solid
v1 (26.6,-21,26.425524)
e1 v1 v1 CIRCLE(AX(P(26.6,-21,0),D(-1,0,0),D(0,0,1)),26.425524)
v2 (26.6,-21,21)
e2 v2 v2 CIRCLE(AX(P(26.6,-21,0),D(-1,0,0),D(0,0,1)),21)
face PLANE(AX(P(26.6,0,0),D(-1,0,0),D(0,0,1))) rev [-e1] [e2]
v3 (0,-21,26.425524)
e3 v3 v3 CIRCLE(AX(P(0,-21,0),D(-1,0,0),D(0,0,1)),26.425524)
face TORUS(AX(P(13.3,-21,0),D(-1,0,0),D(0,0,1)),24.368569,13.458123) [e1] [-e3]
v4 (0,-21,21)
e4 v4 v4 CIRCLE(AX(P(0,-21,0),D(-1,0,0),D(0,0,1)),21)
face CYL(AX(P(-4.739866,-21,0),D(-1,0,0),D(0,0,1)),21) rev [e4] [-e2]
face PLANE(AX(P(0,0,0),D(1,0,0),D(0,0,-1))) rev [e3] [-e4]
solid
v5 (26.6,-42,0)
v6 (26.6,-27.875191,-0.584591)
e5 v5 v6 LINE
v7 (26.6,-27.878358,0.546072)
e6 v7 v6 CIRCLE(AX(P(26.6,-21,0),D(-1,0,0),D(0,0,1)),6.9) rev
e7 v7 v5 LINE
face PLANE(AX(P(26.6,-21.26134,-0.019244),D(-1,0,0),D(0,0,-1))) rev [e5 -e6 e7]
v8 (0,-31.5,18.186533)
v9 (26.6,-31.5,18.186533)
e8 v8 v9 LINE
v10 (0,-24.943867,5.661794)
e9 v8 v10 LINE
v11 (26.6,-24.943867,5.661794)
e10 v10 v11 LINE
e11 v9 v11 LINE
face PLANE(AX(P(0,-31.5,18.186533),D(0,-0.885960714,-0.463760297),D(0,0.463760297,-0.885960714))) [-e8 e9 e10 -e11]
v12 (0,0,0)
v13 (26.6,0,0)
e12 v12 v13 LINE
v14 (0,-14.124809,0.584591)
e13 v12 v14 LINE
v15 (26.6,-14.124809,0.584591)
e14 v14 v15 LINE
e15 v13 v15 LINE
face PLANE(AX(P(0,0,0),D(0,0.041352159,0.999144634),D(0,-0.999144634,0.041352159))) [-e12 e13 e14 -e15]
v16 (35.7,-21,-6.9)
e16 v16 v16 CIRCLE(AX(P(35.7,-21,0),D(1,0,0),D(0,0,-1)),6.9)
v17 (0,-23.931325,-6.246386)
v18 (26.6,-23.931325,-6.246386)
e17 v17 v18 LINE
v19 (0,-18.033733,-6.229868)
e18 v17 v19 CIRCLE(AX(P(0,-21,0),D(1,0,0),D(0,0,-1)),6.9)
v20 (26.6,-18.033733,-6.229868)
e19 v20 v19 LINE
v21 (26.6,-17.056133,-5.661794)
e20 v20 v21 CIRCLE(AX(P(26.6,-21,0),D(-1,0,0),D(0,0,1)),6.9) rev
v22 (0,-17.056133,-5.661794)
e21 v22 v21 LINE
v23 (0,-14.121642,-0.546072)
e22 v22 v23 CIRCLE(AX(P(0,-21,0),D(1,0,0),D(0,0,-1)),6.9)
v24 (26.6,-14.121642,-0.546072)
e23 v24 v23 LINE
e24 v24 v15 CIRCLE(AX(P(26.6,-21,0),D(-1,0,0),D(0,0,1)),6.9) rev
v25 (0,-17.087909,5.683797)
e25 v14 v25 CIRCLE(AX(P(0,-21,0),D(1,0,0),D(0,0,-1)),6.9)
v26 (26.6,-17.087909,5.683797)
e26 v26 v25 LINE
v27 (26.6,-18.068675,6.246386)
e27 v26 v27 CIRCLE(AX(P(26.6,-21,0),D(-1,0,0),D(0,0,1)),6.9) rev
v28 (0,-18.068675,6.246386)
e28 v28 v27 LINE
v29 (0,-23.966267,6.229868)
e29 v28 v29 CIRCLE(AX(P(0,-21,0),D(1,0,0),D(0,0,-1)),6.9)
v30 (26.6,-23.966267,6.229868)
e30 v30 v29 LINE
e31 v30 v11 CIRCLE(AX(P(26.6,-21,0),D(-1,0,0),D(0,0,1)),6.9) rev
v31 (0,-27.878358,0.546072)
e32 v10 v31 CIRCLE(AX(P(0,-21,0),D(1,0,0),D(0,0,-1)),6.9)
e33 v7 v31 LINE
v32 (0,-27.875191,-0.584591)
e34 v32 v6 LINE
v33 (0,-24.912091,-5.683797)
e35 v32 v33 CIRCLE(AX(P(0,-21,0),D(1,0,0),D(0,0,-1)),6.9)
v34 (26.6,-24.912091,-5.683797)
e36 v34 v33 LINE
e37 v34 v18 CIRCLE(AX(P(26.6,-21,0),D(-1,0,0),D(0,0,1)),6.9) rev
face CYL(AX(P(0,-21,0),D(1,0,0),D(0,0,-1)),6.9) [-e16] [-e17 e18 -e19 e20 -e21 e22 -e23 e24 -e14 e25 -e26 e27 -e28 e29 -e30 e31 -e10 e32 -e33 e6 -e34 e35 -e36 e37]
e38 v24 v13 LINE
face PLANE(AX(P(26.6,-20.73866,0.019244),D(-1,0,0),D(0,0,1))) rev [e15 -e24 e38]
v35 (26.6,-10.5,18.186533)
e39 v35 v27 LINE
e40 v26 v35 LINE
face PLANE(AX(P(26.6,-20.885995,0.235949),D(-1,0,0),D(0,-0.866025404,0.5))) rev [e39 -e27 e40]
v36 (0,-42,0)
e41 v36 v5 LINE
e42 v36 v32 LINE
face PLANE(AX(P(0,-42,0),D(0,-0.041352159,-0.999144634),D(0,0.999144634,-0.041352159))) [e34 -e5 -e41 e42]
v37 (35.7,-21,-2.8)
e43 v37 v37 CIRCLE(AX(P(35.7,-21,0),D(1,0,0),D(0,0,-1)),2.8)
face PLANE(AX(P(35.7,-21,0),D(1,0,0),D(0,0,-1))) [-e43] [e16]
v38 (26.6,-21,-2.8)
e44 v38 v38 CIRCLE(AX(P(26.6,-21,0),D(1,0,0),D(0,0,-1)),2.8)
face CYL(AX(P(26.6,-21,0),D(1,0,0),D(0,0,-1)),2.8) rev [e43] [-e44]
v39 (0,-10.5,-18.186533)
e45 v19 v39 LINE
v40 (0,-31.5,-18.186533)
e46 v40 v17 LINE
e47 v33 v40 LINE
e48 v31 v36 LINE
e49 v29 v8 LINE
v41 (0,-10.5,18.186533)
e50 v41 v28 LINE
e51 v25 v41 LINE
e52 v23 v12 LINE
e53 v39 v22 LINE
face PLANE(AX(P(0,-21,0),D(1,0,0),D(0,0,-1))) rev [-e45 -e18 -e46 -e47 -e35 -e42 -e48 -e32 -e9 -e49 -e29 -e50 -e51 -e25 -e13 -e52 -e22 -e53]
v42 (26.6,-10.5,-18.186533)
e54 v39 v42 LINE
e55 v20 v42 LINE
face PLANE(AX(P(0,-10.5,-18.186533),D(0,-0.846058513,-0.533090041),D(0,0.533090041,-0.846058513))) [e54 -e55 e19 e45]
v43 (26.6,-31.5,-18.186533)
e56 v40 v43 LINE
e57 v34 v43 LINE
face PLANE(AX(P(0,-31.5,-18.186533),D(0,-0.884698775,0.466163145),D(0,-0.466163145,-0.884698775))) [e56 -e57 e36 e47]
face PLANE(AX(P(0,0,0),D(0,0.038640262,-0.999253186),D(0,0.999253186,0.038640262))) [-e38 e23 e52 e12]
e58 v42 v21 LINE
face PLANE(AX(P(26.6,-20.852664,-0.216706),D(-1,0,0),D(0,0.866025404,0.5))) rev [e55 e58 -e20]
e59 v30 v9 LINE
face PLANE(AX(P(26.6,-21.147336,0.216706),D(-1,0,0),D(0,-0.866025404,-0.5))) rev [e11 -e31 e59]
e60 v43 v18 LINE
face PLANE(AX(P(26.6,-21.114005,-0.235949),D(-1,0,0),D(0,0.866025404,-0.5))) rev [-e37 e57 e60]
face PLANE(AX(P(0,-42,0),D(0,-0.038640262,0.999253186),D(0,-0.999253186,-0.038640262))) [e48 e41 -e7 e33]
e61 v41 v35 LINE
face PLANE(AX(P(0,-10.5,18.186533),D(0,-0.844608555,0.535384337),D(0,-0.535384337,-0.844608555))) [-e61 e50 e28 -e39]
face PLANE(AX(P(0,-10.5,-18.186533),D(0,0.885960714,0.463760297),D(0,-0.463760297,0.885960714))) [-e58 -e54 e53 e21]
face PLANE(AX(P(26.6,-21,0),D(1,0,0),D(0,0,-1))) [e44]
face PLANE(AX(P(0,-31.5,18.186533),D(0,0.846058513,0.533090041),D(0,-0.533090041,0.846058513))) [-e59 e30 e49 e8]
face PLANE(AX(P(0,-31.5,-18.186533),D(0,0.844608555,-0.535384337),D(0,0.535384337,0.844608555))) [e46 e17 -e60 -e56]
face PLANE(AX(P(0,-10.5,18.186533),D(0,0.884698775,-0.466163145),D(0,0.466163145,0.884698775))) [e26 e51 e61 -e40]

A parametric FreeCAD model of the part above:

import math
import FreeCAD as App
import Part
import Sketcher

V = App.Vector
Q = App.Units.Quantity

doc = App.newDocument("Part")
body = doc.addObject("PartDesign::Body", "Body")

# Sketch on XY plane
sketch1 = doc.addObject("Sketcher::SketchObject", "Sketch")
body.addObject(sketch1)
sketch1.AttachmentSupport = (doc.XY_Plane, [""])
sketch1.MapMode = "FlatFace"
sketch1.addGeometry(Part.LineSegment(V(0, 0, 0), V(27, 0, 0)), False)
sketch1.addGeometry(Part.LineSegment(V(27, 0, 0), V(27, 5, 0)), False)
sketch1.addGeometry(Part.ArcOfCircle(Part.Circle(V(13, 3, 0), V(0, 0, 1), 13), math.radians(9), math.radians(171)), False)
sketch1.addGeometry(Part.LineSegment(V(0, 5, 0), V(0, 0, 0)), False)
sketch1.addGeometry(Part.LineSegment(V(0, -21, 0), V(27, -21, 0)), True)  # axis
sketch1.addConstraint(Sketcher.Constraint("Coincident", 0, 2, 1, 1))
sketch1.addConstraint(Sketcher.Constraint("Coincident", 1, 2, 2, 1))
sketch1.addConstraint(Sketcher.Constraint("Coincident", 2, 2, 3, 1))
sketch1.addConstraint(Sketcher.Constraint("Coincident", 3, 2, 0, 1))
sketch1.addConstraint(Sketcher.Constraint("Horizontal", 0))
sketch1.addConstraint(Sketcher.Constraint("Vertical", 1))
sketch1.addConstraint(Sketcher.Constraint("Vertical", 3))
sketch1.addConstraint(Sketcher.Constraint("Horizontal", 4))
sketch1.addConstraint(Sketcher.Constraint("Coincident", 3, 2, -1, 1))
sketch1.addConstraint(Sketcher.Constraint("PointOnObject", 4, 1, -2))
sketch1.addConstraint(Sketcher.Constraint("Horizontal", 1, 2, 2, 2))
sketch1.addConstraint(Sketcher.Constraint("Vertical", 1, 2, 4, 2))
sketch1.addConstraint(Sketcher.Constraint("DistanceX", 0, 1, 0, 2, Q("26.6 mm")))
sketch1.addConstraint(Sketcher.Constraint("DistanceY", 4, 1, -1, 1, Q("21 mm")))
sketch1.addConstraint(Sketcher.Constraint("Radius", 2, Q("13.458123 mm")))
sketch1.addConstraint(Sketcher.Constraint("DistanceY", 1, 1, 1, 2, Q("5.425524 mm")))
revolution = doc.addObject("PartDesign::Revolution", "Revolution")
body.addObject(revolution)
revolution.Profile = sketch1
revolution.ReferenceAxis = (sketch1, ["Axis0"])
revolution.Angle = 360
body2 = doc.addObject("PartDesign::Body", "Body001")

# Sketch on YZ plane
sketch2 = doc.addObject("Sketcher::SketchObject", "Sketch001")
body2.addObject(sketch2)
sketch2.AttachmentSupport = (doc.getObject("YZ_Plane001"), [""])
sketch2.MapMode = "FlatFace"
sketch2.AttachmentOffset = App.Placement(V(0, 0, 26.6), App.Rotation())
sketch2.addGeometry(Part.Circle(V(-21, 0, 0), V(0, 0, 1), 7), False)
sketch2.addConstraint(Sketcher.Constraint("PointOnObject", 0, 3, -1))
sketch2.addConstraint(Sketcher.Constraint("Diameter", 0, Q("13.8 mm")))
sketch2.addConstraint(Sketcher.Constraint("DistanceX", 0, 3, -1, 1, Q("21 mm")))
pad1 = doc.addObject("PartDesign::Pad", "Pad")
body2.addObject(pad1)
pad1.Profile = sketch2
pad1.Type = "TwoLengths"
pad1.Length = 9.1
pad1.Length2 = 26.6

# Sketch on YZ plane
sketch3 = doc.addObject("Sketcher::SketchObject", "Sketch002")
body2.addObject(sketch3)
sketch3.AttachmentSupport = (doc.getObject("YZ_Plane001"), [""])
sketch3.MapMode = "FlatFace"
sketch3.AttachmentOffset = App.Placement(V(0, 0, 35.7), App.Rotation())
sketch3.addGeometry(Part.Circle(V(-21, 0, 0), V(0, 0, 1), 2.8), False)
sketch3.addConstraint(Sketcher.Constraint("PointOnObject", 0, 3, -1))
sketch3.addConstraint(Sketcher.Constraint("Diameter", 0, Q("5.6 mm")))
sketch3.addConstraint(Sketcher.Constraint("DistanceX", 0, 3, -1, 1, Q("21 mm")))
pocket1 = doc.addObject("PartDesign::Pocket", "Pocket")
body2.addObject(pocket1)
pocket1.Profile = sketch3
pocket1.Length = 9.1

# Sketch on YZ plane
sketch4 = doc.addObject("Sketcher::SketchObject", "Sketch003")
body2.addObject(sketch4)
sketch4.AttachmentSupport = (doc.getObject("YZ_Plane001"), [""])
sketch4.MapMode = "FlatFace"
sketch4.AttachmentOffset = App.Placement(V(0, 0, 26.6), App.Rotation())
sketch4.addGeometry(Part.LineSegment(V(0, 0, 0), V(-14.2, 0.6, 0)), False)
sketch4.addGeometry(Part.ArcOfCircle(Part.Circle(V(-20.7, 0, 0), V(0, 0, 1), 6.6), math.radians(-4.92), math.radians(4.92)), False)
sketch4.addGeometry(Part.LineSegment(V(-14.2, -0.5, 0), V(0, 0, 0)), False)
sketch4.addConstraint(Sketcher.Constraint("Coincident", 0, 2, 1, 2))
sketch4.addConstraint(Sketcher.Constraint("Coincident", 1, 1, 2, 1))
sketch4.addConstraint(Sketcher.Constraint("Coincident", 2, 2, 0, 1))
sketch4.addConstraint(Sketcher.Constraint("Coincident", 2, 2, -1, 1))
sketch4.addConstraint(Sketcher.Constraint("Vertical", 0, 2, 1, 1))
sketch4.addConstraint(Sketcher.Constraint("Radius", 1, Q("6.60491 mm")))
sketch4.addConstraint(Sketcher.Constraint("Distance", 0, Q("14.170229 mm")))
sketch4.addConstraint(Sketcher.Constraint("Distance", 2, Q("14.168689 mm")))
sketch4.addConstraint(Sketcher.Constraint("DistanceX", 1, 3, -1, 1, Q("20.73866 mm")))
pad2 = doc.addObject("PartDesign::Pad", "Pad001")
body2.addObject(pad2)
pad2.Profile = sketch4
pad2.Length = 26.6
pad2.Reversed = True
doc.recompute()

datumline = doc.addObject("PartDesign::Line", "DatumLine")
body2.addObject(datumline)
datumline.Placement = App.Placement(V(0, -21, 0), App.Rotation(V(0, 0, 1), V(1, 0, 0)))
polarpattern = doc.addObject("PartDesign::PolarPattern", "PolarPattern")
body2.addObject(polarpattern)
polarpattern.Originals = [pad2]
polarpattern.Axis = (datumline, [""])
polarpattern.Angle = 360
polarpattern.Occurrences = 6
body2.Tip = polarpattern

doc.recompute()
